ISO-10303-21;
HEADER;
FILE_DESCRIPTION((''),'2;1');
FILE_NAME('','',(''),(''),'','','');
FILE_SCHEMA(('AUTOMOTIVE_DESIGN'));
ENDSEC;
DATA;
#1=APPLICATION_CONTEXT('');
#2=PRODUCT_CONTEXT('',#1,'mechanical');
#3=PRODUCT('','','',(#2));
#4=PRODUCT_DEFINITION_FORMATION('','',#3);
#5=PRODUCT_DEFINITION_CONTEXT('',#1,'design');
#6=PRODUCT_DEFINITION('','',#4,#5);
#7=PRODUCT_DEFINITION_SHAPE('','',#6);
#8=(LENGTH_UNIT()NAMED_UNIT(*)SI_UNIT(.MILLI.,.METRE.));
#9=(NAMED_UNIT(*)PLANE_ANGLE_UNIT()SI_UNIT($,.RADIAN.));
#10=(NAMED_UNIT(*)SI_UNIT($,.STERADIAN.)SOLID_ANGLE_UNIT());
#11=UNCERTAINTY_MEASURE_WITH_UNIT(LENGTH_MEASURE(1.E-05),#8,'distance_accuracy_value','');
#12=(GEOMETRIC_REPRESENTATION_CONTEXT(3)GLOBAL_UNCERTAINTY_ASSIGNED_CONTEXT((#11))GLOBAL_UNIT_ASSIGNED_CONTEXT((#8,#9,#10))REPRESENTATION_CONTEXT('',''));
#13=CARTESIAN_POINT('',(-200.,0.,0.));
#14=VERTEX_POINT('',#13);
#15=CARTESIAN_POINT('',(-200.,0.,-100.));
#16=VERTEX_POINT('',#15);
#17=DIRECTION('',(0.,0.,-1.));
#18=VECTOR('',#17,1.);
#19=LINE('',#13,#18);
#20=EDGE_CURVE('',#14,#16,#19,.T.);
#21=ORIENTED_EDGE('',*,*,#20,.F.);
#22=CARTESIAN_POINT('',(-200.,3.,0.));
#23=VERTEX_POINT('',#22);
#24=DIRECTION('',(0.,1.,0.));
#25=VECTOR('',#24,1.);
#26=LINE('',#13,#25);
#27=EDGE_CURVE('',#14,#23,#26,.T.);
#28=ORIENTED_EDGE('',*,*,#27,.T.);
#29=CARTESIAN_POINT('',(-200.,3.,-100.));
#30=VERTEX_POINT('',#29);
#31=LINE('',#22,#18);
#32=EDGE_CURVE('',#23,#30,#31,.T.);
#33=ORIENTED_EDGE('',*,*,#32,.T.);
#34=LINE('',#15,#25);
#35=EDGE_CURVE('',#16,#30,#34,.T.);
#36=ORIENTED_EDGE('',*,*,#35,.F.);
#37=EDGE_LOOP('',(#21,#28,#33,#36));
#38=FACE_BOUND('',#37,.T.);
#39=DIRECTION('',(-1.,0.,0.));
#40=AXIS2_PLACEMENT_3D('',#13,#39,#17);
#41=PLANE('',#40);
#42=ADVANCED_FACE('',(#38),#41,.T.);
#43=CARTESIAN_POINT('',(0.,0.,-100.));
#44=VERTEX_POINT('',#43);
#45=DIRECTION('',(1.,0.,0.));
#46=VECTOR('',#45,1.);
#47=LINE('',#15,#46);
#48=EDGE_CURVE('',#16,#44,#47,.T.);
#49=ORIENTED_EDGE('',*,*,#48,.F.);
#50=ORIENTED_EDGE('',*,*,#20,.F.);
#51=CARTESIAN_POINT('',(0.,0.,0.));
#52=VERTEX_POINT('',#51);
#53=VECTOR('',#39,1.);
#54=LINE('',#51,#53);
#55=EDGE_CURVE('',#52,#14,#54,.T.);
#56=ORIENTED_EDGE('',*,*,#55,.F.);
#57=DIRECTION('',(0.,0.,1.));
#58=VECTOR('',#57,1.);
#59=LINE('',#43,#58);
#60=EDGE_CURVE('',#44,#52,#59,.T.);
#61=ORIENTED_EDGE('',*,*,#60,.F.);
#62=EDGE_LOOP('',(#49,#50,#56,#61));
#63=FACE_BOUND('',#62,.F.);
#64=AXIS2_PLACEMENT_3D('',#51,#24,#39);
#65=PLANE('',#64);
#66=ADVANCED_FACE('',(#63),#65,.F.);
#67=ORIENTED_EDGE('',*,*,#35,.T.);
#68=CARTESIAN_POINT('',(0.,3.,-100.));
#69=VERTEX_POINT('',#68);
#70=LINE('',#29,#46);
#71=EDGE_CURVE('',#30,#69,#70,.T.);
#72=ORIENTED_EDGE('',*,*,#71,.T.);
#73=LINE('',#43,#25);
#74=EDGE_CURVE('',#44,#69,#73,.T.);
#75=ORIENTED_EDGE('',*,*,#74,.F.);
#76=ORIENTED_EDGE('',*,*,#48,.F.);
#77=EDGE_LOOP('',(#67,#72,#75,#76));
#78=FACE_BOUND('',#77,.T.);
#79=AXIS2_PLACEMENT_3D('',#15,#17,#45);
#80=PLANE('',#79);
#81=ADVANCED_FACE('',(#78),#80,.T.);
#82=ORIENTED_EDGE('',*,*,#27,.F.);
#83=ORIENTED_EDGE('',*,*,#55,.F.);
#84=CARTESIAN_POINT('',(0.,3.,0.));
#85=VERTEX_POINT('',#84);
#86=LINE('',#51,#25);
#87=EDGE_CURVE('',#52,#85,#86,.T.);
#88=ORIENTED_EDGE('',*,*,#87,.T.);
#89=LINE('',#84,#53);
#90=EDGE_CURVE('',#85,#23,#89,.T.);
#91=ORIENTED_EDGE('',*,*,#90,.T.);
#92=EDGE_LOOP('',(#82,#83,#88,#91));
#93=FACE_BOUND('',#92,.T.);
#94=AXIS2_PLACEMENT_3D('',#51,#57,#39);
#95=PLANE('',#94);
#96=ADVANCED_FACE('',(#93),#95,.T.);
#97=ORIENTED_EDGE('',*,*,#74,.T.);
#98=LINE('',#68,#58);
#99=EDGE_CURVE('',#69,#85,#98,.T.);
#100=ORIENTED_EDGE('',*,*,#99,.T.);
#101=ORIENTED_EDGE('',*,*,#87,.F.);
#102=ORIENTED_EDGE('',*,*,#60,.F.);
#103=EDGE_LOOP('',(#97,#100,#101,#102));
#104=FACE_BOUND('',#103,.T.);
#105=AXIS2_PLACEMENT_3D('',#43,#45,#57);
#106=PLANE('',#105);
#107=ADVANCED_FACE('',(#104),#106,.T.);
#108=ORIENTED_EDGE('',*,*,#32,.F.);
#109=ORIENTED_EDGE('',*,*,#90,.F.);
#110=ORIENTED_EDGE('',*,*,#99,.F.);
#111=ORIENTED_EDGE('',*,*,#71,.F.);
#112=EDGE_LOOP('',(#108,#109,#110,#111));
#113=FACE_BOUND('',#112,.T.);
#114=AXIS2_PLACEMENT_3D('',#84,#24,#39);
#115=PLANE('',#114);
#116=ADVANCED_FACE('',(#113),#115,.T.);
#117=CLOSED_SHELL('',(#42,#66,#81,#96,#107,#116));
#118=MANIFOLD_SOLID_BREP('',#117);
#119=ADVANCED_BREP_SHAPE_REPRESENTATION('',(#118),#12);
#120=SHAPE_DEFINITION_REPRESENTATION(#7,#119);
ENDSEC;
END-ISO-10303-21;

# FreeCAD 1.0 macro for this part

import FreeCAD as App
import Part
import Sketcher

doc = App.newDocument("Part")
body = doc.addObject("PartDesign::Body", "Body")

sketch1 = body.newObject("Sketcher::SketchObject", "Sketch")
sketch1.AttachmentSupport = (doc.getObject("XZ_Plane"), [""])
sketch1.MapMode = "FlatFace"
sketch1.addGeometry(Part.LineSegment(App.Vector(-200, 0, 0), App.Vector(0, 0, 0)), False)
sketch1.addGeometry(Part.LineSegment(App.Vector(0, 0, 0), App.Vector(0, -100, 0)), False)
sketch1.addGeometry(Part.LineSegment(App.Vector(0, -100, 0), App.Vector(-200, -100, 0)), False)
sketch1.addGeometry(Part.LineSegment(App.Vector(-200, -100, 0), App.Vector(-200, 0, 0)), False)
sketch1.addConstraint(Sketcher.Constraint("Coincident", 0, 2, 1, 1))
sketch1.addConstraint(Sketcher.Constraint("Coincident", 1, 2, 2, 1))
sketch1.addConstraint(Sketcher.Constraint("Coincident", 2, 2, 3, 1))
sketch1.addConstraint(Sketcher.Constraint("Coincident", 3, 2, 0, 1))
sketch1.addConstraint(Sketcher.Constraint("Horizontal", 0))
sketch1.addConstraint(Sketcher.Constraint("Vertical", 1))
sketch1.addConstraint(Sketcher.Constraint("Horizontal", 2))
sketch1.addConstraint(Sketcher.Constraint("Vertical", 3))
sketch1.addConstraint(Sketcher.Constraint("Coincident", 0, 2, -1, 1))
sketch1.addConstraint(Sketcher.Constraint("DistanceX", 0, 1, 0, 2, 200.0))
sketch1.addConstraint(Sketcher.Constraint("DistanceY", 1, 2, 1, 1, 100.0))
pad1 = body.newObject("PartDesign::Pad", "Pad")
pad1.Profile = sketch1
pad1.Length = 3
pad1.Reversed = True

doc.recompute()
